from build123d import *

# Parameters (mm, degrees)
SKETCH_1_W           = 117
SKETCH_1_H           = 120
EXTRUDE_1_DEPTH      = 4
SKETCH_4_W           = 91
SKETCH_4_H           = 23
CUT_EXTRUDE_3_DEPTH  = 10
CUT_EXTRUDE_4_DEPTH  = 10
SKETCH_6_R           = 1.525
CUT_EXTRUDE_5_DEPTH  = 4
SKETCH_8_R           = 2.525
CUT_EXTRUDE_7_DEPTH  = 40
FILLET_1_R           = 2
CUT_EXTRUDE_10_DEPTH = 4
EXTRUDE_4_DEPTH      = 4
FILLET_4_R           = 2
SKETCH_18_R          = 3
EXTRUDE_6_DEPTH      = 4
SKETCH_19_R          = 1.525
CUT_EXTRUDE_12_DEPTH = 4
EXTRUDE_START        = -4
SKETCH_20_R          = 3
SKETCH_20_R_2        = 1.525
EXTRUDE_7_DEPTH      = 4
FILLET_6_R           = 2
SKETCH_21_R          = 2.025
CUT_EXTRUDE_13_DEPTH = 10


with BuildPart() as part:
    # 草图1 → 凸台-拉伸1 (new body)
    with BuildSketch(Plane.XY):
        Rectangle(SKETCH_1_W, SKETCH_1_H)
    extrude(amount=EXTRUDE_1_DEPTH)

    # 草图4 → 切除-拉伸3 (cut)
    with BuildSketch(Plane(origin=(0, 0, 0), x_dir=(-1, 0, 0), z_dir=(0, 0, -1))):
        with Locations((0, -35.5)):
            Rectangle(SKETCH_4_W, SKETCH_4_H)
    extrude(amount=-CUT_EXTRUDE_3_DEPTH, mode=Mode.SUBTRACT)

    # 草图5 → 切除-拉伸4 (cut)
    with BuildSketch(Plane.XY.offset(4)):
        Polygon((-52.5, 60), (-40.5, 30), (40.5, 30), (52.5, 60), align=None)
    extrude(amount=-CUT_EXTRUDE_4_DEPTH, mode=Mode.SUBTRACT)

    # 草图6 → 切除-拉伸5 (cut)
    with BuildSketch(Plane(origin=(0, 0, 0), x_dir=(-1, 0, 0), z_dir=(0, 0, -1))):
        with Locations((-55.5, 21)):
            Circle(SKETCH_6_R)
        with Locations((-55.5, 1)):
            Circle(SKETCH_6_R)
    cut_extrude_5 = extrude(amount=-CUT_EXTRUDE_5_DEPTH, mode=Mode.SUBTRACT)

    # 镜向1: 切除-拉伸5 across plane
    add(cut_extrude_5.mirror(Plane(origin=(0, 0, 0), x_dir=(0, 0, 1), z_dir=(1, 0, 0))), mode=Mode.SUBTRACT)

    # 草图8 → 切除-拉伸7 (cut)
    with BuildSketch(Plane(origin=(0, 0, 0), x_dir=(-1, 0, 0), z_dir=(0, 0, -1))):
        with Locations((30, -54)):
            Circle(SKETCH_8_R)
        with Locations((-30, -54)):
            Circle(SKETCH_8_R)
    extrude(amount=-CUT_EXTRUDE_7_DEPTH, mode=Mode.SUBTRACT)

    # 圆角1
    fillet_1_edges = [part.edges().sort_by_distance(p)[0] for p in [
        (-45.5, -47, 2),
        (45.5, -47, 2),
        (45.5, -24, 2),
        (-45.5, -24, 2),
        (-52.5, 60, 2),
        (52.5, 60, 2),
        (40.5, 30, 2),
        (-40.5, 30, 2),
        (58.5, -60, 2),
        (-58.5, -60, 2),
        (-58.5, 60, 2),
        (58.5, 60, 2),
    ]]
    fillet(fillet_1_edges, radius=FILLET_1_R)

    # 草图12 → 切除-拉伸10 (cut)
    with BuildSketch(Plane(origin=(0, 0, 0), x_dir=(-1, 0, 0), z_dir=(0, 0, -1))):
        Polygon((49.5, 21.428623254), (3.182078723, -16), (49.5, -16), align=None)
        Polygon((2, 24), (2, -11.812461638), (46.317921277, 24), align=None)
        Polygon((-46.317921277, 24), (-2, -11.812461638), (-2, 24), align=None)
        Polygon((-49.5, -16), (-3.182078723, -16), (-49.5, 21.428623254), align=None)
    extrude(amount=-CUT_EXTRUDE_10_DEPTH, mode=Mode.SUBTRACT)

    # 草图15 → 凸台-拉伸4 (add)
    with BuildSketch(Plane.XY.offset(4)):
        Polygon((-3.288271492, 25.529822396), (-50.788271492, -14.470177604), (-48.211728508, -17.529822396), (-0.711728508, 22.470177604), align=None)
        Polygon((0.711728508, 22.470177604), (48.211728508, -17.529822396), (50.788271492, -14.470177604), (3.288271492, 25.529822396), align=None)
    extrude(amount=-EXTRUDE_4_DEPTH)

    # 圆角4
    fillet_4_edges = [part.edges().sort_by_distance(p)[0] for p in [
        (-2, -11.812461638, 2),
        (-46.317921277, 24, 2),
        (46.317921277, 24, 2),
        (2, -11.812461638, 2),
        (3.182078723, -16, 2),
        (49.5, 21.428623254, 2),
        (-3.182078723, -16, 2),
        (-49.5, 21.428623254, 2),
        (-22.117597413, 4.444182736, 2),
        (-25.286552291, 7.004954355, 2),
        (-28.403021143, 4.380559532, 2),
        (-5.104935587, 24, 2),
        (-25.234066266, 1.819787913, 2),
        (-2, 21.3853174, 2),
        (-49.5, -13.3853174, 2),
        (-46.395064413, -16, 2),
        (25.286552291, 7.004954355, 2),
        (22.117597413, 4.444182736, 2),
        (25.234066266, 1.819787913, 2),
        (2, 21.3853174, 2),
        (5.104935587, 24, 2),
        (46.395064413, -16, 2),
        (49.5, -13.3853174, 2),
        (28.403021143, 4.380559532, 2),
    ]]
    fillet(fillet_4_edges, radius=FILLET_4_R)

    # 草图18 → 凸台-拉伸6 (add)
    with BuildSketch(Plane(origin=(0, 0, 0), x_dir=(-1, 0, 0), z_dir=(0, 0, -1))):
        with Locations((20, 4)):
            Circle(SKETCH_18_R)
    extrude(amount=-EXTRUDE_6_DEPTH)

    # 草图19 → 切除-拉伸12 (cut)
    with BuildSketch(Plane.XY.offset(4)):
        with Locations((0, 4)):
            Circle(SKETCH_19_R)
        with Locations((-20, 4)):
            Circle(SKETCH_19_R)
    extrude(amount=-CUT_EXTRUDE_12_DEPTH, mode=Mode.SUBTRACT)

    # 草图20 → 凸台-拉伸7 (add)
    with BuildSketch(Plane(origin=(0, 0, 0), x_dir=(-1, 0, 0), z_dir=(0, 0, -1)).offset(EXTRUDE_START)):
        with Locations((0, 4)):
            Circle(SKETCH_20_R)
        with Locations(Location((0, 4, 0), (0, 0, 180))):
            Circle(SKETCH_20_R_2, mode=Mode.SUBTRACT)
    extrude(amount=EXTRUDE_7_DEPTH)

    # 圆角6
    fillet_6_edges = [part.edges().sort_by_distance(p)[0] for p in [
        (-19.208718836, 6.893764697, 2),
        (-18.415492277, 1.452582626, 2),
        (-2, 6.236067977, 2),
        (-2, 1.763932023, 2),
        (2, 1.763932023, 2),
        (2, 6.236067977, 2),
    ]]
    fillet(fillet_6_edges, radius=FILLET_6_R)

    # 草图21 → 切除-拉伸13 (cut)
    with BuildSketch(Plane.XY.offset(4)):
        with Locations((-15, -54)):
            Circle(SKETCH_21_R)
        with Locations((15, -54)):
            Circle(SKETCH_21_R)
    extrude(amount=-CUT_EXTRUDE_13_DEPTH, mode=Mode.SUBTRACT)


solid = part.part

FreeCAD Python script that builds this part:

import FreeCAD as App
import Part
import Sketcher
Q = App.Units.Quantity


def edges_at(feature, points):
    """Names of the edges that pass closest to the given points."""
    edges = feature.Shape.Edges
    near = lambda p: min(range(len(edges)), key=lambda i: edges[i].distToShape(Part.Vertex(*p))[0])
    return sorted({f"Edge{near(p) + 1}" for p in points})

doc = App.newDocument("Part")
body = doc.addObject("PartDesign::Body", "Body")

sketch1 = doc.addObject("Sketcher::SketchObject", "Sketch")
body.addObject(sketch1)
sketch1.AttachmentSupport = (doc.XY_Plane, [""])
sketch1.MapMode = "FlatFace"
sketch1.addGeometry(Part.LineSegment(App.Vector(-58, 60, 0), App.Vector(-58, -60, 0)), False)
sketch1.addGeometry(Part.LineSegment(App.Vector(-58, -60, 0), App.Vector(58, -60, 0)), False)
sketch1.addGeometry(Part.LineSegment(App.Vector(58, -60, 0), App.Vector(58, 60, 0)), False)
sketch1.addGeometry(Part.LineSegment(App.Vector(58, 60, 0), App.Vector(-58, 60, 0)), False)
sketch1.addConstraint(Sketcher.Constraint("Coincident", 0, 2, 1, 1))
sketch1.addConstraint(Sketcher.Constraint("Coincident", 1, 2, 2, 1))
sketch1.addConstraint(Sketcher.Constraint("Coincident", 2, 2, 3, 1))
sketch1.addConstraint(Sketcher.Constraint("Coincident", 3, 2, 0, 1))
sketch1.addConstraint(Sketcher.Constraint("Vertical", 0))
sketch1.addConstraint(Sketcher.Constraint("Horizontal", 1))
sketch1.addConstraint(Sketcher.Constraint("Vertical", 2))
sketch1.addConstraint(Sketcher.Constraint("Horizontal", 3))
sketch1.addConstraint(Sketcher.Constraint("Symmetric", 0, 2, 2, 2, -1, 1))
sketch1.addConstraint(Sketcher.Constraint("DistanceX", 1, 1, 1, 2, Q("117 mm")))
sketch1.addConstraint(Sketcher.Constraint("DistanceY", 0, 2, 0, 1, Q("120 mm")))
pad1 = doc.addObject("PartDesign::Pad", "Pad")
body.addObject(pad1)
pad1.Profile = sketch1
pad1.Length = 4

sketch2 = doc.addObject("Sketcher::SketchObject", "Sketch001")
body.addObject(sketch2)
sketch2.AttachmentSupport = (doc.XY_Plane, [""])
sketch2.MapMode = "FlatFace"
sketch2.addGeometry(Part.LineSegment(App.Vector(46, -24, 0), App.Vector(46, -47, 0)), False)
sketch2.addGeometry(Part.LineSegment(App.Vector(46, -47, 0), App.Vector(-46, -47, 0)), False)
sketch2.addGeometry(Part.LineSegment(App.Vector(-46, -47, 0), App.Vector(-46, -24, 0)), False)
sketch2.addGeometry(Part.LineSegment(App.Vector(-46, -24, 0), App.Vector(46, -24, 0)), False)
sketch2.addConstraint(Sketcher.Constraint("Coincident", 0, 2, 1, 1))
sketch2.addConstraint(Sketcher.Constraint("Coincident", 1, 2, 2, 1))
sketch2.addConstraint(Sketcher.Constraint("Coincident", 2, 2, 3, 1))
sketch2.addConstraint(Sketcher.Constraint("Coincident", 3, 2, 0, 1))
sketch2.addConstraint(Sketcher.Constraint("Vertical", 0))
sketch2.addConstraint(Sketcher.Constraint("Horizontal", 1))
sketch2.addConstraint(Sketcher.Constraint("Vertical", 2))
sketch2.addConstraint(Sketcher.Constraint("Horizontal", 3))
sketch2.addConstraint(Sketcher.Constraint("DistanceX", 1, 2, 1, 1, Q("91 mm")))
sketch2.addConstraint(Sketcher.Constraint("DistanceY", 0, 2, 0, 1, Q("23 mm")))
sketch2.addConstraint(Sketcher.Constraint("DistanceY", 0, 2, -1, 1, Q("47 mm")))
sketch2.addConstraint(Sketcher.Constraint("DistanceX", -1, 1, 0, 2, Q("45.5 mm")))
pocket1 = doc.addObject("PartDesign::Pocket", "Pocket")
body.addObject(pocket1)
pocket1.Profile = sketch2
pocket1.Length = 10
pocket1.Reversed = True

sketch3 = doc.addObject("Sketcher::SketchObject", "Sketch002")
body.addObject(sketch3)
sketch3.AttachmentSupport = (doc.XY_Plane, [""])
sketch3.MapMode = "FlatFace"
sketch3.AttachmentOffset = App.Placement(App.Vector(0, 0, 4), App.Rotation())
sketch3.addGeometry(Part.LineSegment(App.Vector(-52, 60, 0), App.Vector(-40, 30, 0)), False)
sketch3.addGeometry(Part.LineSegment(App.Vector(-40, 30, 0), App.Vector(40, 30, 0)), False)
sketch3.addGeometry(Part.LineSegment(App.Vector(40, 30, 0), App.Vector(52, 60, 0)), False)
sketch3.addGeometry(Part.LineSegment(App.Vector(52, 60, 0), App.Vector(-52, 60, 0)), False)
sketch3.addConstraint(Sketcher.Constraint("Coincident", 0, 2, 1, 1))
sketch3.addConstraint(Sketcher.Constraint("Coincident", 1, 2, 2, 1))
sketch3.addConstraint(Sketcher.Constraint("Coincident", 2, 2, 3, 1))
sketch3.addConstraint(Sketcher.Constraint("Coincident", 3, 2, 0, 1))
sketch3.addConstraint(Sketcher.Constraint("Horizontal", 1))
sketch3.addConstraint(Sketcher.Constraint("Horizontal", 3))
sketch3.addConstraint(Sketcher.Constraint("Equal", 0, 2))
sketch3.addConstraint(Sketcher.Constraint("DistanceX", 1, 1, 1, 2, Q("81 mm")))
sketch3.addConstraint(Sketcher.Constraint("DistanceX", 3, 2, 3, 1, Q("105 mm")))
sketch3.addConstraint(Sketcher.Constraint("DistanceY", -1, 1, 0, 2, Q("30 mm")))
sketch3.addConstraint(Sketcher.Constraint("DistanceY", -1, 1, 2, 2, Q("60 mm")))
sketch3.addConstraint(Sketcher.Constraint("DistanceX", 0, 2, -1, 1, Q("40.5 mm")))
pocket2 = doc.addObject("PartDesign::Pocket", "Pocket001")
body.addObject(pocket2)
pocket2.Profile = sketch3
pocket2.Length = 10

sketch4 = doc.addObject("Sketcher::SketchObject", "Sketch003")
body.addObject(sketch4)
sketch4.AttachmentSupport = (doc.XY_Plane, [""])
sketch4.MapMode = "FlatFace"
sketch4.addGeometry(Part.Circle(App.Vector(55.5, 21, 0), App.Vector(0, 0, 1), 1.5), False)
sketch4.addGeometry(Part.Circle(App.Vector(55.5, 1, 0), App.Vector(0, 0, 1), 1.5), False)
sketch4.addConstraint(Sketcher.Constraint("Equal", 0, 1))
sketch4.addConstraint(Sketcher.Constraint("Vertical", 0, 3, 1, 3))
sketch4.addConstraint(Sketcher.Constraint("Diameter", 0, Q("3.05 mm")))
sketch4.addConstraint(Sketcher.Constraint("DistanceY", -1, 1, 0, 3, Q("21 mm")))
sketch4.addConstraint(Sketcher.Constraint("DistanceY", -1, 1, 1, 3, Q("1 mm")))
sketch4.addConstraint(Sketcher.Constraint("DistanceX", -1, 1, 0, 3, Q("55.5 mm")))
pocket3 = doc.addObject("PartDesign::Pocket", "Pocket002")
body.addObject(pocket3)
pocket3.Profile = sketch4
pocket3.Length = 4
pocket3.Reversed = True
doc.recompute()

mirrored = doc.addObject("PartDesign::Mirrored", "Mirrored")
body.addObject(mirrored)
mirrored.Originals = [pocket3]
mirrored.MirrorPlane = (doc.YZ_Plane, [""])
body.Tip = mirrored

sketch5 = doc.addObject("Sketcher::SketchObject", "Sketch004")
body.addObject(sketch5)
sketch5.AttachmentSupport = (doc.XY_Plane, [""])
sketch5.MapMode = "FlatFace"
sketch5.addGeometry(Part.Circle(App.Vector(-30, -54, 0), App.Vector(0, 0, 1), 2.5), False)
sketch5.addGeometry(Part.Circle(App.Vector(30, -54, 0), App.Vector(0, 0, 1), 2.5), False)
sketch5.addConstraint(Sketcher.Constraint("Equal", 0, 1))
sketch5.addConstraint(Sketcher.Constraint("Symmetric", 0, 3, 1, 3, -2))
sketch5.addConstraint(Sketcher.Constraint("Diameter", 0, Q("5.05 mm")))
sketch5.addConstraint(Sketcher.Constraint("DistanceX", 0, 3, -1, 1, Q("30 mm")))
sketch5.addConstraint(Sketcher.Constraint("DistanceY", 0, 3, -1, 1, Q("54 mm")))
pocket4 = doc.addObject("PartDesign::Pocket", "Pocket003")
body.addObject(pocket4)
pocket4.Profile = sketch5
pocket4.Length = 40
pocket4.Reversed = True
doc.recompute()

fillet = doc.addObject("PartDesign::Fillet", "Fillet")
body.addObject(fillet)
fillet.Base = (pocket4, edges_at(pocket4, [
    (-45.5, -47, 2),
    (45.5, -47, 2),
    (45.5, -24, 2),
    (-45.5, -24, 2),
    (-52.5, 60, 2),
    (52.5, 60, 2),
    (40.5, 30, 2),
    (-40.5, 30, 2),
    (58.5, -60, 2),
    (-58.5, -60, 2),
    (-58.5, 60, 2),
    (58.5, 60, 2),
]))
fillet.Radius = 2

sketch6 = doc.addObject("Sketcher::SketchObject", "Sketch005")
body.addObject(sketch6)
sketch6.AttachmentSupport = (doc.XY_Plane, [""])
sketch6.MapMode = "FlatFace"
sketch6.addGeometry(Part.LineSegment(App.Vector(-50, 21, 0), App.Vector(-3, -16, 0)), False)
sketch6.addGeometry(Part.LineSegment(App.Vector(-3, -16, 0), App.Vector(-50, -16, 0)), False)
sketch6.addGeometry(Part.LineSegment(App.Vector(-50, -16, 0), App.Vector(-50, 21, 0)), False)
sketch6.addGeometry(Part.LineSegment(App.Vector(-2, 24, 0), App.Vector(-2, -12, 0)), False)
sketch6.addGeometry(Part.LineSegment(App.Vector(-2, -12, 0), App.Vector(-46, 24, 0)), False)
sketch6.addGeometry(Part.LineSegment(App.Vector(-46, 24, 0), App.Vector(-2, 24, 0)), False)
sketch6.addGeometry(Part.LineSegment(App.Vector(46, 24, 0), App.Vector(2, -12, 0)), False)
sketch6.addGeometry(Part.LineSegment(App.Vector(2, -12, 0), App.Vector(2, 24, 0)), False)
sketch6.addGeometry(Part.LineSegment(App.Vector(2, 24, 0), App.Vector(46, 24, 0)), False)
sketch6.addGeometry(Part.LineSegment(App.Vector(50, -16, 0), App.Vector(3, -16, 0)), False)
sketch6.addGeometry(Part.LineSegment(App.Vector(3, -16, 0), App.Vector(50, 21, 0)), False)
sketch6.addGeometry(Part.LineSegment(App.Vector(50, 21, 0), App.Vector(50, -16, 0)), False)
sketch6.addConstraint(Sketcher.Constraint("Coincident", 0, 2, 1, 1))
sketch6.addConstraint(Sketcher.Constraint("Coincident", 1, 2, 2, 1))
sketch6.addConstraint(Sketcher.Constraint("Coincident", 2, 2, 0, 1))
sketch6.addConstraint(Sketcher.Constraint("Coincident", 3, 2, 4, 1))
sketch6.addConstraint(Sketcher.Constraint("Coincident", 4, 2, 5, 1))
sketch6.addConstraint(Sketcher.Constraint("Coincident", 5, 2, 3, 1))
sketch6.addConstraint(Sketcher.Constraint("Coincident", 6, 2, 7, 1))
sketch6.addConstraint(Sketcher.Constraint("Coincident", 7, 2, 8, 1))
sketch6.addConstraint(Sketcher.Constraint("Coincident", 8, 2, 6, 1))
sketch6.addConstraint(Sketcher.Constraint("Coincident", 9, 2, 10, 1))
sketch6.addConstraint(Sketcher.Constraint("Coincident", 10, 2, 11, 1))
sketch6.addConstraint(Sketcher.Constraint("Coincident", 11, 2, 9, 1))
sketch6.addConstraint(Sketcher.Constraint("Horizontal", 1))
sketch6.addConstraint(Sketcher.Constraint("Vertical", 2))
sketch6.addConstraint(Sketcher.Constraint("Vertical", 3))
sketch6.addConstraint(Sketcher.Constraint("Horizontal", 5))
sketch6.addConstraint(Sketcher.Constraint("Vertical", 7))
sketch6.addConstraint(Sketcher.Constraint("Horizontal", 8))
sketch6.addConstraint(Sketcher.Constraint("Horizontal", 9))
sketch6.addConstraint(Sketcher.Constraint("Vertical", 11))
sketch6.addConstraint(Sketcher.Constraint("Symmetric", 3, 2, 6, 2, -2))
sketch6.addConstraint(Sketcher.Constraint("Symmetric", 4, 2, 8, 2, -2))
sketch6.addConstraint(Sketcher.Constraint("Symmetric", 0, 2, 9, 2, -2))
sketch6.addConstraint(Sketcher.Constraint("Symmetric", 2, 2, 10, 2, -2))
sketch6.addConstraint(Sketcher.Constraint("Parallel", 0, 4))
sketch6.addConstraint(Sketcher.Constraint("DistanceY", 0, 2, -1, 1, Q("16 mm")))
sketch6.addConstraint(Sketcher.Constraint("DistanceX", 3, 2, -1, 1, Q("2 mm")))
sketch6.addConstraint(Sketcher.Constraint("DistanceY", -1, 1, 4, 2, Q("24 mm")))
sketch6.addConstraint(Sketcher.Constraint("DistanceX", 1, 2, -1, 1, Q("49.5 mm")))
sketch6.addConstraint(Sketcher.Constraint("DistanceX", 0, 2, 8, 2, Q("49.5 mm")))
sketch6.addConstraint(Sketcher.Constraint("DistanceX", 1, 2, 1, 1, Q("46.317921 mm")))
sketch6.addConstraint(Sketcher.Constraint("DistanceY", 3, 2, 3, 1, Q("35.812462 mm")))
pocket5 = doc.addObject("PartDesign::Pocket", "Pocket004")
body.addObject(pocket5)
pocket5.Profile = sketch6
pocket5.Length = 4
pocket5.Reversed = True

sketch7 = doc.addObject("Sketcher::SketchObject", "Sketch006")
body.addObject(sketch7)
sketch7.AttachmentSupport = (doc.XY_Plane, [""])
sketch7.MapMode = "FlatFace"
sketch7.AttachmentOffset = App.Placement(App.Vector(0, 0, 4), App.Rotation())
sketch7.addGeometry(Part.LineSegment(App.Vector(-3.3, 25.5, 0), App.Vector(-50.8, -14.5, 0)), False)
sketch7.addGeometry(Part.LineSegment(App.Vector(-50.8, -14.5, 0), App.Vector(-48.2, -17.5, 0)), False)
sketch7.addGeometry(Part.LineSegment(App.Vector(-48.2, -17.5, 0), App.Vector(-0.7, 22.5, 0)), False)
sketch7.addGeometry(Part.LineSegment(App.Vector(-0.7, 22.5, 0), App.Vector(-3.3, 25.5, 0)), False)
sketch7.addGeometry(Part.LineSegment(App.Vector(0.7, 22.5, 0), App.Vector(48.2, -17.5, 0)), False)
sketch7.addGeometry(Part.LineSegment(App.Vector(48.2, -17.5, 0), App.Vector(50.8, -14.5, 0)), False)
sketch7.addGeometry(Part.LineSegment(App.Vector(50.8, -14.5, 0), App.Vector(3.3, 25.5, 0)), False)
sketch7.addGeometry(Part.LineSegment(App.Vector(3.3, 25.5, 0), App.Vector(0.7, 22.5, 0)), False)
sketch7.addConstraint(Sketcher.Constraint("Coincident", 0, 2, 1, 1))
sketch7.addConstraint(Sketcher.Constraint("Coincident", 1, 2, 2, 1))
sketch7.addConstraint(Sketcher.Constraint("Coincident", 2, 2, 3, 1))
sketch7.addConstraint(Sketcher.Constraint("Coincident", 3, 2, 0, 1))
sketch7.addConstraint(Sketcher.Constraint("Coincident", 4, 2, 5, 1))
sketch7.addConstraint(Sketcher.Constraint("Coincident", 5, 2, 6, 1))
sketch7.addConstraint(Sketcher.Constraint("Coincident", 6, 2, 7, 1))
sketch7.addConstraint(Sketcher.Constraint("Coincident", 7, 2, 4, 1))
sketch7.addConstraint(Sketcher.Constraint("Symmetric", 1, 2, 4, 2, -2))
sketch7.addConstraint(Sketcher.Constraint("Symmetric", 0, 2, 5, 2, -2))
sketch7.addConstraint(Sketcher.Constraint("Symmetric", 3, 2, 6, 2, -2))
sketch7.addConstraint(Sketcher.Constraint("Symmetric", 2, 2, 7, 2, -2))
sketch7.addConstraint(Sketcher.Constraint("Perpendicular", 0, 1))
sketch7.addConstraint(Sketcher.Constraint("Perpendicular", 1, 2))
sketch7.addConstraint(Sketcher.Constraint("Perpendicular", 2, 3))
sketch7.addConstraint(Sketcher.Constraint("Distance", 1, Q("4 mm")))
sketch7.addConstraint(Sketcher.Constraint("DistanceY", 1, 2, 2, 2, Q("40 mm")))
sketch7.addConstraint(Sketcher.Constraint("DistanceX", 0, 2, 4, 2, Q("99 mm")))
sketch7.addConstraint(Sketcher.Constraint("DistanceX", 2, 2, 6, 2, Q("4 mm")))
sketch7.addConstraint(Sketcher.Constraint("DistanceY", 0, 2, -1, 1, Q("14.470178 mm")))
pad2 = doc.addObject("PartDesign::Pad", "Pad001")
body.addObject(pad2)
pad2.Profile = sketch7
pad2.Length = 4
pad2.Reversed = True
doc.recompute()

fillet2 = doc.addObject("PartDesign::Fillet", "Fillet001")
body.addObject(fillet2)
fillet2.Base = (pad2, edges_at(pad2, [
    (-2, -11.812, 2),
    (-46.318, 24, 2),
    (46.318, 24, 2),
    (2, -11.812, 2),
    (3.182, -16, 2),
    (49.5, 21.429, 2),
    (-3.182, -16, 2),
    (-49.5, 21.429, 2),
    (-22.118, 4.444, 2),
    (-25.287, 7.005, 2),
    (-28.403, 4.381, 2),
    (-5.105, 24, 2),
    (-25.234, 1.82, 2),
    (-2, 21.385, 2),
    (-49.5, -13.385, 2),
    (-46.395, -16, 2),
    (25.287, 7.005, 2),
    (22.118, 4.444, 2),
    (25.234, 1.82, 2),
    (2, 21.385, 2),
    (5.105, 24, 2),
    (46.395, -16, 2),
    (49.5, -13.385, 2),
    (28.403, 4.381, 2),
]))
fillet2.Radius = 2

sketch8 = doc.addObject("Sketcher::SketchObject", "Sketch007")
body.addObject(sketch8)
sketch8.AttachmentSupport = (doc.XY_Plane, [""])
sketch8.MapMode = "FlatFace"
sketch8.addGeometry(Part.Circle(App.Vector(-20, 4, 0), App.Vector(0, 0, 1), 3), False)
sketch8.addConstraint(Sketcher.Constraint("Diameter", 0, Q("6 mm")))
sketch8.addConstraint(Sketcher.Constraint("DistanceX", 0, 3, -1, 1, Q("20 mm")))
sketch8.addConstraint(Sketcher.Constraint("DistanceY", -1, 1, 0, 3, Q("4 mm")))
pad3 = doc.addObject("PartDesign::Pad", "Pad002")
body.addObject(pad3)
pad3.Profile = sketch8
pad3.Length = 4

sketch9 = doc.addObject("Sketcher::SketchObject", "Sketch008")
body.addObject(sketch9)
sketch9.AttachmentSupport = (doc.XY_Plane, [""])
sketch9.MapMode = "FlatFace"
sketch9.AttachmentOffset = App.Placement(App.Vector(0, 0, 4), App.Rotation())
sketch9.addGeometry(Part.Circle(App.Vector(0, 4, 0), App.Vector(0, 0, 1), 1.5), False)
sketch9.addGeometry(Part.Circle(App.Vector(-20, 4, 0), App.Vector(0, 0, 1), 1.5), False)
sketch9.addConstraint(Sketcher.Constraint("Equal", 0, 1))
sketch9.addConstraint(Sketcher.Constraint("PointOnObject", 0, 3, -2))
sketch9.addConstraint(Sketcher.Constraint("Horizontal", 0, 3, 1, 3))
sketch9.addConstraint(Sketcher.Constraint("Diameter", 0, Q("3.05 mm")))
sketch9.addConstraint(Sketcher.Constraint("DistanceY", -1, 1, 0, 3, Q("4 mm")))
sketch9.addConstraint(Sketcher.Constraint("DistanceX", 1, 3, -1, 1, Q("20 mm")))
pocket6 = doc.addObject("PartDesign::Pocket", "Pocket005")
body.addObject(pocket6)
pocket6.Profile = sketch9
pocket6.Length = 4

sketch10 = doc.addObject("Sketcher::SketchObject", "Sketch009")
body.addObject(sketch10)
sketch10.AttachmentSupport = (doc.XY_Plane, [""])
sketch10.MapMode = "FlatFace"
sketch10.AttachmentOffset = App.Placement(App.Vector(0, 0, 4), App.Rotation())
sketch10.addGeometry(Part.Circle(App.Vector(0, 4, 0), App.Vector(0, 0, 1), 3), False)
sketch10.addGeometry(Part.Circle(App.Vector(0, 4, 0), App.Vector(0, 0, 1), 1.5), False)
sketch10.addConstraint(Sketcher.Constraint("Coincident", 1, 3, 0, 3))
sketch10.addConstraint(Sketcher.Constraint("PointOnObject", 0, 3, -2))
sketch10.addConstraint(Sketcher.Constraint("Diameter", 0, Q("6 mm")))
sketch10.addConstraint(Sketcher.Constraint("Diameter", 1, Q("3.05 mm")))
sketch10.addConstraint(Sketcher.Constraint("DistanceY", -1, 1, 0, 3, Q("4 mm")))
pad4 = doc.addObject("PartDesign::Pad", "Pad003")
body.addObject(pad4)
pad4.Profile = sketch10
pad4.Length = 4
pad4.Reversed = True
doc.recompute()

fillet3 = doc.addObject("PartDesign::Fillet", "Fillet002")
body.addObject(fillet3)
fillet3.Base = (pad4, edges_at(pad4, [
    (-19.209, 6.894, 2),
    (-18.415, 1.453, 2),
    (-2, 6.236, 2),
    (-2, 1.764, 2),
    (2, 1.764, 2),
    (2, 6.236, 2),
]))
fillet3.Radius = 2

sketch11 = doc.addObject("Sketcher::SketchObject", "Sketch010")
body.addObject(sketch11)
sketch11.AttachmentSupport = (doc.XY_Plane, [""])
sketch11.MapMode = "FlatFace"
sketch11.AttachmentOffset = App.Placement(App.Vector(0, 0, 4), App.Rotation())
sketch11.addGeometry(Part.Circle(App.Vector(-15, -54, 0), App.Vector(0, 0, 1), 2), False)
sketch11.addGeometry(Part.Circle(App.Vector(15, -54, 0), App.Vector(0, 0, 1), 2), False)
sketch11.addConstraint(Sketcher.Constraint("Equal", 0, 1))
sketch11.addConstraint(Sketcher.Constraint("Symmetric", 0, 3, 1, 3, -2))
sketch11.addConstraint(Sketcher.Constraint("Diameter", 0, Q("4.05 mm")))
sketch11.addConstraint(Sketcher.Constraint("DistanceX", 0, 3, -1, 1, Q("15 mm")))
sketch11.addConstraint(Sketcher.Constraint("DistanceY", 0, 3, -1, 1, Q("54 mm")))
pocket7 = doc.addObject("PartDesign::Pocket", "Pocket006")
body.addObject(pocket7)
pocket7.Profile = sketch11
pocket7.Length = 10

doc.recompute()
